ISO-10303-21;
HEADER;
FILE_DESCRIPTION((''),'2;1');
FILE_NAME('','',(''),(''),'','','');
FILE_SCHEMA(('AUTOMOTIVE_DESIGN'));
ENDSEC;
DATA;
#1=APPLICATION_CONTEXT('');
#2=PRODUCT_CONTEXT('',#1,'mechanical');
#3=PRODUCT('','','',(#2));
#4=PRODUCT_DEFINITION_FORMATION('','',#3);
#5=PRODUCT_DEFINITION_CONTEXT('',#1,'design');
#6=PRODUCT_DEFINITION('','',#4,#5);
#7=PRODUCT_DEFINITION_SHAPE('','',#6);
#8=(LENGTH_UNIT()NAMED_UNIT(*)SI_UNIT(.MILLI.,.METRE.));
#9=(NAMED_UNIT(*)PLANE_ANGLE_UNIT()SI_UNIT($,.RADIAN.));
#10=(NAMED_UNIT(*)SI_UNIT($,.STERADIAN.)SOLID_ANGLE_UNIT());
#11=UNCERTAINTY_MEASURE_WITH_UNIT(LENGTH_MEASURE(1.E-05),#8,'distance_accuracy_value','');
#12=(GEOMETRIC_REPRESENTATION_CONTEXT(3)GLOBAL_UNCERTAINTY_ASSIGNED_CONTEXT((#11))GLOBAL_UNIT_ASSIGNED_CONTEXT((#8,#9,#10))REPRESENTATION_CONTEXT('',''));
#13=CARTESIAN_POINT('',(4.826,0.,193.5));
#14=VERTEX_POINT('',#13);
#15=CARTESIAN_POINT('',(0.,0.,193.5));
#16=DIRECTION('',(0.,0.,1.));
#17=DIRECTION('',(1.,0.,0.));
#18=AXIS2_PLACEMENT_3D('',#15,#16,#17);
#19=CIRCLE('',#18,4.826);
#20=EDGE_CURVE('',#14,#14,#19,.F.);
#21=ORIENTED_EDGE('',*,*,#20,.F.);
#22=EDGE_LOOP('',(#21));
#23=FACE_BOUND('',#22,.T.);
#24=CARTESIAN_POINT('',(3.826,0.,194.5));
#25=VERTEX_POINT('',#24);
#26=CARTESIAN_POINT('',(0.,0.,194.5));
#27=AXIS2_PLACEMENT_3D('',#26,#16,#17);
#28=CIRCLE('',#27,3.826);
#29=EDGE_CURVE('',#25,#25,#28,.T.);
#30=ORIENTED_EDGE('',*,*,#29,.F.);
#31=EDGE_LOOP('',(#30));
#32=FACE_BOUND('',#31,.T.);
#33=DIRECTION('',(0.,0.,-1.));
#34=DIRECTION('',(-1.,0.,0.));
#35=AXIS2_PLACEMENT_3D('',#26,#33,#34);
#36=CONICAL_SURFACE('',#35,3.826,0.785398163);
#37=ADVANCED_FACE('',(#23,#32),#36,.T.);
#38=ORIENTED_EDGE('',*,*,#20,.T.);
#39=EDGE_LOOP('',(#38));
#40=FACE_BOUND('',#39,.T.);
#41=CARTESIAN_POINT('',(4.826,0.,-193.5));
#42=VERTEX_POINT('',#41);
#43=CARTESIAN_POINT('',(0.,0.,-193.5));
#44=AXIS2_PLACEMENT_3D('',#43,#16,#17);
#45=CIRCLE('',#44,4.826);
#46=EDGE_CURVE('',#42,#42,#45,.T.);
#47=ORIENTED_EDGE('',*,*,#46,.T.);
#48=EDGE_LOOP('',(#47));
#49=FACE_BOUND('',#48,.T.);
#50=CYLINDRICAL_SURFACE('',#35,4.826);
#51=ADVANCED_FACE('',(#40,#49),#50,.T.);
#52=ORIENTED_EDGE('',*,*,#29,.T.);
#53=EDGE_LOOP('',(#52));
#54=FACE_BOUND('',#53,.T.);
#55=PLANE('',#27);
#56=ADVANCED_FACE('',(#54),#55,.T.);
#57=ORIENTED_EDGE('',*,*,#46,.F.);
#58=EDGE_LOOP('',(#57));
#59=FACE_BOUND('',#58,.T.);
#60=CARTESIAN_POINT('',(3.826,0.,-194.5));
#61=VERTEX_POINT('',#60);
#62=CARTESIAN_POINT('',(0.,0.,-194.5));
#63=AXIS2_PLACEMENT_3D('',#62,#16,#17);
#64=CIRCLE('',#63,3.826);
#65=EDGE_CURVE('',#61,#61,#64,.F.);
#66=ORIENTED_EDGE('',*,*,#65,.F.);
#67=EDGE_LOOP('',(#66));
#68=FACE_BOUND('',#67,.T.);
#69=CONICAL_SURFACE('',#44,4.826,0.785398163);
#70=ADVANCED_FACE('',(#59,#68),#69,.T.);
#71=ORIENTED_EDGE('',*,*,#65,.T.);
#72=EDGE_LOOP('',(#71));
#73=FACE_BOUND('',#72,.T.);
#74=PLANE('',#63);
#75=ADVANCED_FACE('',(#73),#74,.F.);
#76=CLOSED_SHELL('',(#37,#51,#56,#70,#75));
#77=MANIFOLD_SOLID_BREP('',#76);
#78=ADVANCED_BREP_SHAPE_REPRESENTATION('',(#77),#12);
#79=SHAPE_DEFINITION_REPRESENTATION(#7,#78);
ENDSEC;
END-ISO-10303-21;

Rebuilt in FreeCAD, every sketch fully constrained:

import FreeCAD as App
import Part
import Sketcher
from FreeCAD import Vector


def edges_at(feature, points):
    """Names of the edges that pass closest to the given points."""
    edges = feature.Shape.Edges
    near = lambda p: min(range(len(edges)), key=lambda i: edges[i].distToShape(Part.Vertex(*p))[0])
    return sorted({f"Edge{near(p) + 1}" for p in points})

doc = App.newDocument("Part")
params = doc.addObject("Spreadsheet::Sheet", "Params")
for row, (alias, value) in enumerate([
    ("pad1_length", "389 mm"),
    ("chamfer_size", "1 mm"),
], start=1):
    params.set(f"A{row}", alias)
    params.set(f"B{row}", "=" + value)
    params.setAlias(f"B{row}", alias)

body = doc.addObject("PartDesign::Body", "Body")

sketch1 = body.newObject("Sketcher::SketchObject", "Sketch")
sketch1.AttachmentSupport = (doc.getObject("XY_Plane"), [""])
sketch1.MapMode = "FlatFace"
sketch1.addGeometry(Part.Circle(Vector(0, 0, 0), Vector(0, 0, 1), 4.8), False)
sketch1.addConstraint([
    Sketcher.Constraint("Coincident", 0, 3, -1, 1),
    Sketcher.Constraint("Diameter", 0, 9.652),
])
pad1 = body.newObject("PartDesign::Pad", "Pad")
pad1.Profile = sketch1
pad1.setExpression("Length", "Params.pad1_length")
pad1.Midplane = True
doc.recompute()

chamfer = body.newObject("PartDesign::Chamfer", "Chamfer")
chamfer.Base = (pad1, edges_at(pad1, [(-4.826, 0, -194.5), (-4.826, 0, 194.5)]))
chamfer.setExpression("Size", "Params.chamfer_size")

doc.recompute()
